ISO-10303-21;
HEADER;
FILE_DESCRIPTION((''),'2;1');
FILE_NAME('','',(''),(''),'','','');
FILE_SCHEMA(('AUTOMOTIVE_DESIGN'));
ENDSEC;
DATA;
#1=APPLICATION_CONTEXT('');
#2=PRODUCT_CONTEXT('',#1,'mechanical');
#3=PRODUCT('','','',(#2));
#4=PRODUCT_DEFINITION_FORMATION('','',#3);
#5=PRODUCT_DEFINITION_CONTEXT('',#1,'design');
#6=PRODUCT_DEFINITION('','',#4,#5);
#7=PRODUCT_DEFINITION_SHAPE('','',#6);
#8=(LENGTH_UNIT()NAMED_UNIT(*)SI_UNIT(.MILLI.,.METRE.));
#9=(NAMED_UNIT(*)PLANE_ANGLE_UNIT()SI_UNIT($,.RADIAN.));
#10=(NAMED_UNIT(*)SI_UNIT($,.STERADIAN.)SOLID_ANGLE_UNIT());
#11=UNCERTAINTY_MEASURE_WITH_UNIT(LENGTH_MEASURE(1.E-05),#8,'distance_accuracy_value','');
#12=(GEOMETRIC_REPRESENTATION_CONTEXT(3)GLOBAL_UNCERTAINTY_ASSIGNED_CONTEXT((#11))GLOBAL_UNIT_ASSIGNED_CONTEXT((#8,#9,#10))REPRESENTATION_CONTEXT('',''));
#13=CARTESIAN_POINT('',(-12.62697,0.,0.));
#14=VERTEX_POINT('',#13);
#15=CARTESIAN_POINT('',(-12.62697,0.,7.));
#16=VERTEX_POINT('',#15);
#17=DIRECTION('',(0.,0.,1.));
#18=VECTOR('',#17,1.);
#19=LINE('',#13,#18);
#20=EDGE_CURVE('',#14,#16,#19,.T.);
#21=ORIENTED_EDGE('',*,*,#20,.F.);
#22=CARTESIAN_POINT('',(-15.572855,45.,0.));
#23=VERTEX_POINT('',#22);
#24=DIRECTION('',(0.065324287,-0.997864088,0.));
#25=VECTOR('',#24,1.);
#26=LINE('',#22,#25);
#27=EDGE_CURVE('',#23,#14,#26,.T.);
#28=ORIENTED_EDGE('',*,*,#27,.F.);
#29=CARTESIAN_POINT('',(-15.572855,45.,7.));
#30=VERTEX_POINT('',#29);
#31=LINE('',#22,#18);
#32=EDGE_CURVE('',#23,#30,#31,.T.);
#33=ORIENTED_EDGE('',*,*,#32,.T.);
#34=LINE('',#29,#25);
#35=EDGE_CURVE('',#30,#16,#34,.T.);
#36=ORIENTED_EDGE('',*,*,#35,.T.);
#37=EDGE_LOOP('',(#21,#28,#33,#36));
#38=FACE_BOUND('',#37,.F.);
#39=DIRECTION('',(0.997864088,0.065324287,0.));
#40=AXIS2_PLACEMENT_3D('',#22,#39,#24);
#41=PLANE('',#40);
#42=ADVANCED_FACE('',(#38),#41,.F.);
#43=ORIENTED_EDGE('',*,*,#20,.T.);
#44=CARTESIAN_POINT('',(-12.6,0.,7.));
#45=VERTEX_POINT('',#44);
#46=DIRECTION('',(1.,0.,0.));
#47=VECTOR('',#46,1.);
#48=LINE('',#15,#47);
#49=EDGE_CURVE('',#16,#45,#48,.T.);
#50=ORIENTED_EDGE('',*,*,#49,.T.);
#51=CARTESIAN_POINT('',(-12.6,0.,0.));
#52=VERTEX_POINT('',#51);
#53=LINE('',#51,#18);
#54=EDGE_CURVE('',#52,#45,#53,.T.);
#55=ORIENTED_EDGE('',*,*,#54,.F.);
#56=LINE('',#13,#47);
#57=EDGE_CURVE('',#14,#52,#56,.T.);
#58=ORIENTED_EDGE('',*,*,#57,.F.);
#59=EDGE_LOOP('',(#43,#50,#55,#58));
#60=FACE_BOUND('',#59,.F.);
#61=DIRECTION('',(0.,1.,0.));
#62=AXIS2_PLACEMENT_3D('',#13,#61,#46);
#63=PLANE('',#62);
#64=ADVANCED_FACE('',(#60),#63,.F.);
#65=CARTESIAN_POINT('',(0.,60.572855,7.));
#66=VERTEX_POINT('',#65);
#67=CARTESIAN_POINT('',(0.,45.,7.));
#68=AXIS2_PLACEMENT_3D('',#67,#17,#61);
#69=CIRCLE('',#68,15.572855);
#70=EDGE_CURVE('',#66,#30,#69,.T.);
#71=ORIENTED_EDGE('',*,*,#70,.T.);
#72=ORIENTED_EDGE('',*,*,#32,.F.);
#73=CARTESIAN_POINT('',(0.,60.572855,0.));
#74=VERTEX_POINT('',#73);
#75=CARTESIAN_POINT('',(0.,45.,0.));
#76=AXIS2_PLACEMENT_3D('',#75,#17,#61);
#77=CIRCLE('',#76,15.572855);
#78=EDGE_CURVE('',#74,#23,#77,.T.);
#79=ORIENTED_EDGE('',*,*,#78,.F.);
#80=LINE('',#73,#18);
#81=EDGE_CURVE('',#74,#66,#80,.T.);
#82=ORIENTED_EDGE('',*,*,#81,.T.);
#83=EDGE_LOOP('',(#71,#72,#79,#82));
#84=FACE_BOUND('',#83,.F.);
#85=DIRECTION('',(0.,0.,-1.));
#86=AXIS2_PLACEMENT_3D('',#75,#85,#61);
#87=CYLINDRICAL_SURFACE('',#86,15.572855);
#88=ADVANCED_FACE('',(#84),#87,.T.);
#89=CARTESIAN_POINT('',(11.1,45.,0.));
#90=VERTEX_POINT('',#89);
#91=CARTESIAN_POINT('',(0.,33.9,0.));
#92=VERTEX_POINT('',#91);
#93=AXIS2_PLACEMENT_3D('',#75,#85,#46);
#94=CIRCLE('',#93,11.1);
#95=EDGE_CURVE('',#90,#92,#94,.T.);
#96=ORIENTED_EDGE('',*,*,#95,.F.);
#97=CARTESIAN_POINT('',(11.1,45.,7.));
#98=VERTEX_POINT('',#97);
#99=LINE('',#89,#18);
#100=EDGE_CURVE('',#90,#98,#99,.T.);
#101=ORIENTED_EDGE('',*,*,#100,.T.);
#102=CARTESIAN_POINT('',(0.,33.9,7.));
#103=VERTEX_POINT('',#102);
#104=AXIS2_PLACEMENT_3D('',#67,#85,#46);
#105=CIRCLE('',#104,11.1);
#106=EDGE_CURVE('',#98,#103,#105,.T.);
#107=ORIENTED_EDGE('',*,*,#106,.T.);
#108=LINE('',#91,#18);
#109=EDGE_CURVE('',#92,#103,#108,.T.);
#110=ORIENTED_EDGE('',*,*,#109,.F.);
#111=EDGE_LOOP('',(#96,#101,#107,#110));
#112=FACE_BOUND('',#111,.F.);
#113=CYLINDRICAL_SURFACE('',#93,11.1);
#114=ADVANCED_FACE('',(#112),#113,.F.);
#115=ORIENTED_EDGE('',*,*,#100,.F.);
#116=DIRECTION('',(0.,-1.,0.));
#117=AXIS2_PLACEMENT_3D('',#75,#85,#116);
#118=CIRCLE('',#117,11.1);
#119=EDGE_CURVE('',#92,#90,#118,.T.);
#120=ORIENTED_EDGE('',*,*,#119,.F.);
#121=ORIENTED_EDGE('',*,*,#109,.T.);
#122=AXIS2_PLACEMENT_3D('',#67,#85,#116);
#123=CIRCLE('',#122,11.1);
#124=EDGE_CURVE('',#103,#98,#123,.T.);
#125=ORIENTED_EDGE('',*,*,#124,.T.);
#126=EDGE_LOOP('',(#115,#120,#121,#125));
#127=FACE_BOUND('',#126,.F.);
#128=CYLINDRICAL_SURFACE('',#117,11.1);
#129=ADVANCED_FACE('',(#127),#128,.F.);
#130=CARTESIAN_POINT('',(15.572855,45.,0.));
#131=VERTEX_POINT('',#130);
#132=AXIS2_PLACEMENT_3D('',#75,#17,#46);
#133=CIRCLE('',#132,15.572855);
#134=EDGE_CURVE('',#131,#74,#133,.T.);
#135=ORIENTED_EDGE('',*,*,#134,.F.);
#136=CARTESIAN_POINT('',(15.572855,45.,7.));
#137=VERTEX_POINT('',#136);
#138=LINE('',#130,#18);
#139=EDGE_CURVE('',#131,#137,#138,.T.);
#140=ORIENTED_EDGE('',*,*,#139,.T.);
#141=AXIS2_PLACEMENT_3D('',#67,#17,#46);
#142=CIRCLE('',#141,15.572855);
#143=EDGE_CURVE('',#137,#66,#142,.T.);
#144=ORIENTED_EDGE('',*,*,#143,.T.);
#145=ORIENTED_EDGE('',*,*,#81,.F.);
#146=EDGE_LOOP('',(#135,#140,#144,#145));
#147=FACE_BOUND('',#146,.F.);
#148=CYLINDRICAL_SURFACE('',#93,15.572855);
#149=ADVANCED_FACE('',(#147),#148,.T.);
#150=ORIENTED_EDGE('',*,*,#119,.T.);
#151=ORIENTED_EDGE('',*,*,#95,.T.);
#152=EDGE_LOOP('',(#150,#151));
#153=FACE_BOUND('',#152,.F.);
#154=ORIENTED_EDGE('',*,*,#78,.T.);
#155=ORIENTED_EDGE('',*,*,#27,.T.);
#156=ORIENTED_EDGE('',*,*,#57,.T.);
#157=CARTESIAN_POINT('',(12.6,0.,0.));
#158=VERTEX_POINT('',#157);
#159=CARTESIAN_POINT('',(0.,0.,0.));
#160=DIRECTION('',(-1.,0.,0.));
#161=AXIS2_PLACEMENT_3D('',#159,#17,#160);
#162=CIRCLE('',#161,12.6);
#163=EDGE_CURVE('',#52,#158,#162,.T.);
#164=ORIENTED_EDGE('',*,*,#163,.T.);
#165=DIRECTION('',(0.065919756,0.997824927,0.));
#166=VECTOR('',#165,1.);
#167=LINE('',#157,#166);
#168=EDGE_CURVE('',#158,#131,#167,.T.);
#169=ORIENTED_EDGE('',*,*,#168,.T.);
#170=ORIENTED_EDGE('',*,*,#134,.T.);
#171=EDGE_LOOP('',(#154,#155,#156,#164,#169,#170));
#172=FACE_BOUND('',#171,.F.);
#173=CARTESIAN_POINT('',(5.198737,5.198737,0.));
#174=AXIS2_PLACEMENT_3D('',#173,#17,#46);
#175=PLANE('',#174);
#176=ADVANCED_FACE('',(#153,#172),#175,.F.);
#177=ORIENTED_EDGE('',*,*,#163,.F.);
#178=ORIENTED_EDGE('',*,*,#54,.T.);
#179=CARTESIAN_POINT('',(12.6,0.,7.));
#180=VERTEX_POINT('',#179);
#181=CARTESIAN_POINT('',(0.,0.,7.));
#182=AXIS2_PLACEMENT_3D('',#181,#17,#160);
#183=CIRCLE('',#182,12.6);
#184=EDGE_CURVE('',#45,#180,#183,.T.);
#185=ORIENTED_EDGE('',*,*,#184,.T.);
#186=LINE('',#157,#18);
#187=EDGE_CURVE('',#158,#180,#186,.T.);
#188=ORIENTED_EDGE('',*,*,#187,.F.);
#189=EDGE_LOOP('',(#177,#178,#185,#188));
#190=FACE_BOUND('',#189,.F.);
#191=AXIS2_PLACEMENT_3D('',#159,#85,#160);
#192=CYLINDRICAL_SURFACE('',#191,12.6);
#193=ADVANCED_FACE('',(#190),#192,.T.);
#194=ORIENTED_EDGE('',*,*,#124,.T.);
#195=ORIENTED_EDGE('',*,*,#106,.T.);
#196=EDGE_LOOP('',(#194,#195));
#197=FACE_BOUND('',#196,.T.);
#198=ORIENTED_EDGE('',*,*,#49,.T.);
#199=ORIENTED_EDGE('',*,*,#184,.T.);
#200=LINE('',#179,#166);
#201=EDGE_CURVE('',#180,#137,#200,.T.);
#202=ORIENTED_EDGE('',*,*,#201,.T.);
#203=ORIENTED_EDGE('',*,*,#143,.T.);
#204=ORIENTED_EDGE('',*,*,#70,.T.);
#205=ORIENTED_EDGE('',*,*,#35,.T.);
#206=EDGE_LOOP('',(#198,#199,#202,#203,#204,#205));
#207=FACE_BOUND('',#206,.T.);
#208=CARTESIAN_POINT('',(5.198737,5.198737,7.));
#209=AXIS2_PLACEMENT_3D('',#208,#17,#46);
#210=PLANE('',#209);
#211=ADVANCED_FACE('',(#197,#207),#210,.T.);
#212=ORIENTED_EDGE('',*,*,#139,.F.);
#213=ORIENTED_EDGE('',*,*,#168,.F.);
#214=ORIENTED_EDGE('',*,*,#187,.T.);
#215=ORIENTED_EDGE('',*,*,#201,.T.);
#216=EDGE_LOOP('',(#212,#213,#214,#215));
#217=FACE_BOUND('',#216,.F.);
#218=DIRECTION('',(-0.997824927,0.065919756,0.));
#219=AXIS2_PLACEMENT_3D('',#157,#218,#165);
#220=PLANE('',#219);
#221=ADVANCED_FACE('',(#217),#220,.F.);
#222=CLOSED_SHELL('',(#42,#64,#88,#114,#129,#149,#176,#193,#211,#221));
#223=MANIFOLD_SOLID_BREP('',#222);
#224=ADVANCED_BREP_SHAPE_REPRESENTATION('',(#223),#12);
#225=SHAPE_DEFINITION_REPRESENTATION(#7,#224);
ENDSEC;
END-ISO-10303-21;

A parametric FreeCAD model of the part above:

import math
import FreeCAD as App
import Part
import Sketcher
from FreeCAD import Vector

doc = App.newDocument("Part")
body = doc.addObject("PartDesign::Body", "Body")

# Sketch on XY plane
sketch1 = doc.addObject("Sketcher::SketchObject", "Sketch")
body.addObject(sketch1)
sketch1.AttachmentSupport = (doc.XY_Plane, [""])
sketch1.MapMode = "FlatFace"
sketch1.addGeometry([
    Part.LineSegment(Vector(-15.572855, 45, 0), Vector(-12.62697, 0, 0)),  # 0
    Part.LineSegment(Vector(-12.62697, 0, 0), Vector(-12.6, 0, 0)),  # 1
    Part.ArcOfCircle(Part.Circle(Vector(0, 0, 0), Vector(0, 0, 1), 12.6), math.radians(180), math.radians(360)),  # 2
    Part.LineSegment(Vector(12.6, 0, 0), Vector(15.572855, 45, 0)),  # 3
    Part.ArcOfCircle(Part.Circle(Vector(0, 45, 0), Vector(0, 0, 1), 15.572855), math.radians(0), math.radians(90)),  # 4
    Part.ArcOfCircle(Part.Circle(Vector(0, 45, 0), Vector(0, 0, 1), 15.572855), math.radians(90), math.radians(180)),  # 5
    Part.ArcOfCircle(Part.Circle(Vector(0, 45, 0), Vector(0, 0, 1), 11.1), math.radians(0), math.radians(270)),  # 6
    Part.ArcOfCircle(Part.Circle(Vector(0, 45, 0), Vector(0, 0, 1), 11.1), math.radians(-90), math.radians(0)),  # 7
], False)
sketch1.addConstraint([
    Sketcher.Constraint("Coincident", 0, 2, 1, 1),
    Sketcher.Constraint("Coincident", 1, 2, 2, 1),
    Sketcher.Constraint("Coincident", 2, 2, 3, 1),
    Sketcher.Constraint("Coincident", 3, 2, 4, 1),
    Sketcher.Constraint("Tangent", 4, 2, 5, 1),
    Sketcher.Constraint("Coincident", 5, 2, 0, 1),
    Sketcher.Constraint("Tangent", 6, 1, 7, 2),
    Sketcher.Constraint("Coincident", 7, 1, 6, 2),
    Sketcher.Constraint("Horizontal", 1),
    Sketcher.Constraint("Coincident", 2, 3, -1, 1),
    Sketcher.Constraint("Coincident", 6, 3, 4, 3),
    Sketcher.Constraint("Equal", 4, 5),
    Sketcher.Constraint("Symmetric", 3, 2, 5, 2, -2),
    Sketcher.Constraint("PointOnObject", 0, 2, -1),
    Sketcher.Constraint("PointOnObject", 2, 2, -1),
    Sketcher.Constraint("PointOnObject", 4, 2, -2),
    Sketcher.Constraint("PointOnObject", 7, 1, -2),
    Sketcher.Constraint("Horizontal", 7, 3, 3, 2),
    Sketcher.Constraint("Horizontal", 5, 2, 6, 1),
    Sketcher.Constraint("Radius", 2, 12.6),
    Sketcher.Constraint("Radius", 6, 11.1),
    Sketcher.Constraint("DistanceY", -1, 1, 4, 3, 45.0),
    Sketcher.Constraint("Radius", 4, 15.572855),
    Sketcher.Constraint("DistanceX", 1, 1, 1, 2, 0.02697),
])
pad1 = doc.addObject("PartDesign::Pad", "Pad")
body.addObject(pad1)
pad1.Profile = sketch1
pad1.Length = 7

doc.recompute()
